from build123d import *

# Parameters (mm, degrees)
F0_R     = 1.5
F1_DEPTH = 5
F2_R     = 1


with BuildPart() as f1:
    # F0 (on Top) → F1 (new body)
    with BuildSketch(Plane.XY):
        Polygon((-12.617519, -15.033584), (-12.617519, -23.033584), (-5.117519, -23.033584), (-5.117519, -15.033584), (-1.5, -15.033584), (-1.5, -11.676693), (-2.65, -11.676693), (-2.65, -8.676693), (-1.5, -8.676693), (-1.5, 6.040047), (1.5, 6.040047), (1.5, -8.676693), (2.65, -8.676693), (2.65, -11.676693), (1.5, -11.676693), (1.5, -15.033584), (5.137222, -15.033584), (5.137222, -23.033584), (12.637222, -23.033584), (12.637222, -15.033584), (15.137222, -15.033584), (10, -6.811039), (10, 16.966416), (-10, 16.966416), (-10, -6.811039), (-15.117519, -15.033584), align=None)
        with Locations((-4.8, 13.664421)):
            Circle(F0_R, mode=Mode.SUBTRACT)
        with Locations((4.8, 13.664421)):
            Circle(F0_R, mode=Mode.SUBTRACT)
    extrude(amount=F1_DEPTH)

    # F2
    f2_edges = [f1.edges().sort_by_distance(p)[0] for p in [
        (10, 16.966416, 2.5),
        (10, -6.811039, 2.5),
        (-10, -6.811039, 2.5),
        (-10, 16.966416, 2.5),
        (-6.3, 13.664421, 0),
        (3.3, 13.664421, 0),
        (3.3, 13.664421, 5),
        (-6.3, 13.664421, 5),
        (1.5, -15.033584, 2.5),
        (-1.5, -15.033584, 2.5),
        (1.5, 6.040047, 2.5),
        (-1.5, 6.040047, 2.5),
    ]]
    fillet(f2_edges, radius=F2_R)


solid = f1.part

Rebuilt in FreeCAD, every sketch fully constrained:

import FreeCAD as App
import Part
import Sketcher


def edges_at(feature, points):
    """Names of the edges that pass closest to the given points."""
    edges = feature.Shape.Edges
    near = lambda p: min(range(len(edges)), key=lambda i: edges[i].distToShape(Part.Vertex(*p))[0])
    return sorted({f"Edge{near(p) + 1}" for p in points})


def add_polygon(sketch, points):
    """Adds a closed chain of lines whose ends are joined by coincident constraints."""
    first, n = sketch.GeometryCount, len(points)
    for a, b in zip(points, points[1:] + points[:1]):
        sketch.addGeometry(Part.LineSegment(App.Vector(*a, 0), App.Vector(*b, 0)), False)
    for i in range(n):
        sketch.addConstraint(Sketcher.Constraint("Coincident", first + i, 2, first + (i + 1) % n, 1))

doc = App.newDocument("Part")
body = doc.addObject("PartDesign::Body", "Body")

# Sketch on XY plane
sketch1 = body.newObject("Sketcher::SketchObject", "Sketch")
sketch1.AttachmentSupport = (doc.getObject("XY_Plane"), [""])
sketch1.MapMode = "FlatFace"
add_polygon(sketch1, [(-12.617519, -15.033584), (-12.617519, -23.033584), (-5.117519, -23.033584), (-5.117519, -15.033584), (-1.5, -15.033584), (-1.5, -11.676693), (-2.65, -11.676693), (-2.65, -8.676693), (-1.5, -8.676693), (-1.5, 6.040047), (1.5, 6.040047), (1.5, -8.676693), (2.65, -8.676693), (2.65, -11.676693), (1.5, -11.676693), (1.5, -15.033584), (5.137222, -15.033584), (5.137222, -23.033584), (12.637222, -23.033584), (12.637222, -15.033584), (15.137222, -15.033584), (10, -6.811039), (10, 16.966416), (-10, 16.966416), (-10, -6.811039), (-15.117519, -15.033584)])  # lines 0-25
sketch1.addGeometry(Part.Circle(App.Vector(-4.8, 13.664421, 0), App.Vector(0, 0, 1), 1.5), False)  # 26
sketch1.addGeometry(Part.Circle(App.Vector(4.8, 13.664421, 0), App.Vector(0, 0, 1), 1.5), False)  # 27
sketch1.addConstraint([
    Sketcher.Constraint("Vertical", 0),
    Sketcher.Constraint("Horizontal", 1),
    Sketcher.Constraint("Vertical", 2),
    Sketcher.Constraint("Horizontal", 3),
    Sketcher.Constraint("Vertical", 4),
    Sketcher.Constraint("Horizontal", 5),
    Sketcher.Constraint("Vertical", 6),
    Sketcher.Constraint("Horizontal", 7),
    Sketcher.Constraint("Vertical", 8),
    Sketcher.Constraint("Horizontal", 9),
    Sketcher.Constraint("Vertical", 10),
    Sketcher.Constraint("Horizontal", 11),
    Sketcher.Constraint("Vertical", 12),
    Sketcher.Constraint("Horizontal", 13),
    Sketcher.Constraint("Vertical", 14),
    Sketcher.Constraint("Horizontal", 15),
    Sketcher.Constraint("Vertical", 16),
    Sketcher.Constraint("Horizontal", 17),
    Sketcher.Constraint("Vertical", 18),
    Sketcher.Constraint("Horizontal", 19),
    Sketcher.Constraint("Vertical", 21),
    Sketcher.Constraint("Horizontal", 22),
    Sketcher.Constraint("Vertical", 23),
    Sketcher.Constraint("Horizontal", 25),
    Sketcher.Constraint("Equal", 26, 27),
    Sketcher.Constraint("Symmetric", 26, 3, 27, 3, -2),
    Sketcher.Constraint("Symmetric", 7, 2, 10, 2, -2),
    Sketcher.Constraint("Symmetric", 5, 2, 12, 2, -2),
    Sketcher.Constraint("Symmetric", 3, 2, 14, 2, -2),
    Sketcher.Constraint("Symmetric", 20, 2, 23, 2, -2),
    Sketcher.Constraint("Horizontal", 1, 2, 16, 2),
    Sketcher.Constraint("Horizontal", 15, 2, 18, 2),
    Sketcher.Constraint("Horizontal", 19, 2, 24, 2),
    Sketcher.Constraint("Vertical", 4, 2, 7, 2),
    Sketcher.Constraint("Equal", 1, 17),
    Sketcher.Constraint("Equal", 19, 25),
    Sketcher.Constraint("Equal", 9, 6),
    Sketcher.Constraint("Diameter", 26, 3.0),
    Sketcher.Constraint("DistanceX", 9, 1, 9, 2, 3.0),
    Sketcher.Constraint("DistanceX", 22, 2, 22, 1, 20.0),
    Sketcher.Constraint("DistanceY", 0, 2, 0, 1, 8.0),
    Sketcher.Constraint("DistanceX", 1, 1, 1, 2, 7.5),
    Sketcher.Constraint("DistanceX", 19, 1, 19, 2, 2.5),
    Sketcher.Constraint("DistanceX", 5, 2, 5, 1, 1.15),
    Sketcher.Constraint("DistanceX", 26, 3, -1, 1, 4.8),
    Sketcher.Constraint("Distance", 24, 9.685001),
    Sketcher.Constraint("DistanceX", 3, 1, 3, 2, 3.617519),
    Sketcher.Constraint("DistanceY", 4, 1, 4, 2, 3.356891),
    Sketcher.Constraint("DistanceY", 8, 1, 8, 2, 14.71674),
    Sketcher.Constraint("DistanceX", 15, 1, 15, 2, 3.637222),
    Sketcher.Constraint("DistanceY", 21, 1, 21, 2, 23.777455),
    Sketcher.Constraint("DistanceY", -1, 1, 26, 3, 13.664421),
    Sketcher.Constraint("DistanceY", 20, 2, -1, 1, 6.811039),
])
pad1 = body.newObject("PartDesign::Pad", "Pad")
pad1.Profile = sketch1
pad1.Length = 5
doc.recompute()

fillet = body.newObject("PartDesign::Fillet", "Fillet")
fillet.Base = (pad1, edges_at(pad1, [
    (10, 16.966, 2.5),
    (10, -6.811, 2.5),
    (-10, -6.811, 2.5),
    (-10, 16.966, 2.5),
    (-6.3, 13.664, 0),
    (3.3, 13.664, 0),
    (3.3, 13.664, 5),
    (-6.3, 13.664, 5),
    (1.5, -15.034, 2.5),
    (-1.5, -15.034, 2.5),
    (1.5, 6.04, 2.5),
    (-1.5, 6.04, 2.5),
]))
fillet.Radius = 1

doc.recompute()
